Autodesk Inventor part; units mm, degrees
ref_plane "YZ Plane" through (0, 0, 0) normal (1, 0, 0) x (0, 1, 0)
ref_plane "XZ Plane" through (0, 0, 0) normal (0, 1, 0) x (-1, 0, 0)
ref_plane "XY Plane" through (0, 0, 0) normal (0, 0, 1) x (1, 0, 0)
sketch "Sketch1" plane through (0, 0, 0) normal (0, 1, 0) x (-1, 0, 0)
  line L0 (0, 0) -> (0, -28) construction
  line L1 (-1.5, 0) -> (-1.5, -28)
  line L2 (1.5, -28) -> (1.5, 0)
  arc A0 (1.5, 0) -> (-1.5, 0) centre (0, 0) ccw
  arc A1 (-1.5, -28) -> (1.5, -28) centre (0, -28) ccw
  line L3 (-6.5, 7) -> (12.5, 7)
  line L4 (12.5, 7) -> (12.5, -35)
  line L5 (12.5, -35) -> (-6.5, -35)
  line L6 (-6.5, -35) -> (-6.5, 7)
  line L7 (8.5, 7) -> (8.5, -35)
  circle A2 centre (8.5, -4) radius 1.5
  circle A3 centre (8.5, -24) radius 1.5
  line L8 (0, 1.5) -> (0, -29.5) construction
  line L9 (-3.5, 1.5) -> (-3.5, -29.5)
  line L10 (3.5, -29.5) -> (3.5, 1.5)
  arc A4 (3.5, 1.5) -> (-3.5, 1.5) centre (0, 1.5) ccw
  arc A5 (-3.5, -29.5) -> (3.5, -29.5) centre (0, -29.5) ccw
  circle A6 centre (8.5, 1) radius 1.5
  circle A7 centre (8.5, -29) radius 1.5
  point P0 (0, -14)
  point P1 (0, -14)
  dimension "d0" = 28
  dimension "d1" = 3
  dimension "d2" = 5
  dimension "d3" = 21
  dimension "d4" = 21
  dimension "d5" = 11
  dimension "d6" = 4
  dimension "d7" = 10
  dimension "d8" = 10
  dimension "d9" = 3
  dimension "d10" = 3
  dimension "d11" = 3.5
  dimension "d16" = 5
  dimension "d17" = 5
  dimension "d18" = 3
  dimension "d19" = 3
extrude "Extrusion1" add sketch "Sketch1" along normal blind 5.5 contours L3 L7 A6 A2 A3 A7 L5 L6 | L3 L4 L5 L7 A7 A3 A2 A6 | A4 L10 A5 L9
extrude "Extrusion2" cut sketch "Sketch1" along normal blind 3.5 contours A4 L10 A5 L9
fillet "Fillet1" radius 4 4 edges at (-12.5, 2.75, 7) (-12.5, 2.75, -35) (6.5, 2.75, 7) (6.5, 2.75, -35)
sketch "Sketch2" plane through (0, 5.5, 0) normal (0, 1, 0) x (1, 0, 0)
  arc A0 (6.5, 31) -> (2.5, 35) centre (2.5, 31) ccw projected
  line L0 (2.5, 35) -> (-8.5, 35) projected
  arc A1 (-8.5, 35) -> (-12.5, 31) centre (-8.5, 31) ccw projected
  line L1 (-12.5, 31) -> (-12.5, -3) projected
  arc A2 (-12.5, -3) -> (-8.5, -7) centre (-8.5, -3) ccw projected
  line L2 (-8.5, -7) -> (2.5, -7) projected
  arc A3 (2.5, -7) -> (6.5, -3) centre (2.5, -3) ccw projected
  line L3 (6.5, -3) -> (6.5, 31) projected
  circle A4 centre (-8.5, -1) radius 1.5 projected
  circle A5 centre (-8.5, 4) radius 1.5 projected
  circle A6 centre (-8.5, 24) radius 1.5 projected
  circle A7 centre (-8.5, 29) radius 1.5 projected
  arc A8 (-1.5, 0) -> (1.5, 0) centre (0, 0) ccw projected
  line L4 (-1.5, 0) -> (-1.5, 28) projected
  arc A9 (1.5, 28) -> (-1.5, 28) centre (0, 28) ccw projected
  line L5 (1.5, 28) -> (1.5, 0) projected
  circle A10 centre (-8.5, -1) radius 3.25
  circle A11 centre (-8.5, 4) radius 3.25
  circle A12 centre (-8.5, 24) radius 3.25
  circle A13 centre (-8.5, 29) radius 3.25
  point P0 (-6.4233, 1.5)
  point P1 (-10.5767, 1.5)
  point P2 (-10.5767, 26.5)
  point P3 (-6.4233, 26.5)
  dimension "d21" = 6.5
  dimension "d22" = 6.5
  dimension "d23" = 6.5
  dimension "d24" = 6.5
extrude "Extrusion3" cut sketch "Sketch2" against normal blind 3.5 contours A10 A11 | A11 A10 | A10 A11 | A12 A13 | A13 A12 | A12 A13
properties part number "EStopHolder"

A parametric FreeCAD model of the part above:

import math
import FreeCAD as App
import Part
import Sketcher
from FreeCAD import Vector
Q = App.Units.Quantity


def edges_at(feature, points):
    """Names of the edges that pass closest to the given points."""
    edges = feature.Shape.Edges
    near = lambda p: min(range(len(edges)), key=lambda i: edges[i].distToShape(Part.Vertex(*p))[0])
    return sorted({f"Edge{near(p) + 1}" for p in points})

doc = App.newDocument("Part")
body = doc.addObject("PartDesign::Body", "Body")

sketch1 = doc.addObject("Sketcher::SketchObject", "Sketch")
body.addObject(sketch1)
sketch1.AttachmentSupport = (doc.XZ_Plane, [""])
sketch1.MapMode = "FlatFace"
sketch1.addGeometry(Part.LineSegment(Vector(6.5, 7, 0), Vector(6.5, -35, 0)), False)
sketch1.addGeometry(Part.LineSegment(Vector(6.5, -35, 0), Vector(-12.5, -35, 0)), False)
sketch1.addGeometry(Part.LineSegment(Vector(-12.5, -35, 0), Vector(-12.5, 7, 0)), False)
sketch1.addGeometry(Part.LineSegment(Vector(-12.5, 7, 0), Vector(6.5, 7, 0)), False)
sketch1.addGeometry(Part.Circle(Vector(-8.5, 1, 0), Vector(0, 0, 1), 1.5), False)
sketch1.addGeometry(Part.Circle(Vector(-8.5, -4, 0), Vector(0, 0, 1), 1.5), False)
sketch1.addGeometry(Part.Circle(Vector(-8.5, -24, 0), Vector(0, 0, 1), 1.5), False)
sketch1.addGeometry(Part.Circle(Vector(-8.5, -29, 0), Vector(0, 0, 1), 1.5), False)
sketch1.addGeometry(Part.LineSegment(Vector(1.5, -28, 0), Vector(1.5, 0, 0)), False)
sketch1.addGeometry(Part.ArcOfCircle(Part.Circle(Vector(0, 0, 0), Vector(0, 0, 1), 1.5), math.radians(0), math.radians(180)), False)
sketch1.addGeometry(Part.LineSegment(Vector(-1.5, 0, 0), Vector(-1.5, -28, 0)), False)
sketch1.addGeometry(Part.ArcOfCircle(Part.Circle(Vector(0, -28, 0), Vector(0, 0, 1), 1.5), math.radians(180), math.radians(360)), False)
sketch1.addConstraint(Sketcher.Constraint("Coincident", 0, 2, 1, 1))
sketch1.addConstraint(Sketcher.Constraint("Coincident", 1, 2, 2, 1))
sketch1.addConstraint(Sketcher.Constraint("Coincident", 2, 2, 3, 1))
sketch1.addConstraint(Sketcher.Constraint("Coincident", 3, 2, 0, 1))
sketch1.addConstraint(Sketcher.Constraint("Tangent", 8, 2, 9, 1))
sketch1.addConstraint(Sketcher.Constraint("Tangent", 9, 2, 10, 1))
sketch1.addConstraint(Sketcher.Constraint("Tangent", 10, 2, 11, 1))
sketch1.addConstraint(Sketcher.Constraint("Tangent", 11, 2, 8, 1))
sketch1.addConstraint(Sketcher.Constraint("Vertical", 0))
sketch1.addConstraint(Sketcher.Constraint("Horizontal", 1))
sketch1.addConstraint(Sketcher.Constraint("Vertical", 2))
sketch1.addConstraint(Sketcher.Constraint("Horizontal", 3))
sketch1.addConstraint(Sketcher.Constraint("Vertical", 8))
sketch1.addConstraint(Sketcher.Constraint("Vertical", 10))
sketch1.addConstraint(Sketcher.Constraint("Coincident", 9, 3, -1, 1))
sketch1.addConstraint(Sketcher.Constraint("Equal", 4, 5))
sketch1.addConstraint(Sketcher.Constraint("Equal", 5, 6))
sketch1.addConstraint(Sketcher.Constraint("Equal", 6, 7))
sketch1.addConstraint(Sketcher.Constraint("Equal", 7, 9))
sketch1.addConstraint(Sketcher.Constraint("Vertical", 4, 3, 5, 3))
sketch1.addConstraint(Sketcher.Constraint("Vertical", 5, 3, 6, 3))
sketch1.addConstraint(Sketcher.Constraint("Vertical", 6, 3, 7, 3))
sketch1.addConstraint(Sketcher.Constraint("Diameter", 4, Q("3 mm")))
sketch1.addConstraint(Sketcher.Constraint("DistanceY", 8, 1, 8, 2, Q("28 mm")))
sketch1.addConstraint(Sketcher.Constraint("DistanceY", 5, 3, -1, 1, Q("4 mm")))
sketch1.addConstraint(Sketcher.Constraint("DistanceY", 5, 3, 4, 3, Q("5 mm")))
sketch1.addConstraint(Sketcher.Constraint("DistanceY", 7, 3, 6, 3, Q("5 mm")))
sketch1.addConstraint(Sketcher.Constraint("DistanceY", 11, 3, 6, 3, Q("4 mm")))
sketch1.addConstraint(Sketcher.Constraint("DistanceY", 0, 2, 6, 3, Q("11 mm")))
sketch1.addConstraint(Sketcher.Constraint("DistanceX", 1, 2, 7, 3, Q("4 mm")))
sketch1.addConstraint(Sketcher.Constraint("DistanceY", 5, 3, 2, 2, Q("11 mm")))
sketch1.addConstraint(Sketcher.Constraint("DistanceX", 8, 2, 3, 2, Q("5 mm")))
sketch1.addConstraint(Sketcher.Constraint("DistanceX", 4, 3, 8, 2, Q("10 mm")))
pad1 = doc.addObject("PartDesign::Pad", "Pad")
body.addObject(pad1)
pad1.Profile = sketch1
pad1.Length = 5.5
pad1.Reversed = True

sketch2 = doc.addObject("Sketcher::SketchObject", "Sketch001")
body.addObject(sketch2)
sketch2.AttachmentSupport = (doc.XZ_Plane, [""])
sketch2.MapMode = "FlatFace"
sketch2.addGeometry(Part.ArcOfCircle(Part.Circle(Vector(0, 1.5, 0), Vector(0, 0, 1), 3.5), math.radians(0), math.radians(180)), False)
sketch2.addGeometry(Part.LineSegment(Vector(3.5, 1.5, 0), Vector(3.5, -29.5, 0)), False)
sketch2.addGeometry(Part.ArcOfCircle(Part.Circle(Vector(0, -29.5, 0), Vector(0, 0, 1), 3.5), math.radians(180), math.radians(360)), False)
sketch2.addGeometry(Part.LineSegment(Vector(-3.5, -29.5, 0), Vector(-3.5, 1.5, 0)), False)
sketch2.addGeometry(Part.LineSegment(Vector(1.5, -28, 0), Vector(1.5, 0, 0)), False)
sketch2.addGeometry(Part.ArcOfCircle(Part.Circle(Vector(0, 0, 0), Vector(0, 0, 1), 1.5), math.radians(0), math.radians(180)), False)
sketch2.addGeometry(Part.LineSegment(Vector(-1.5, 0, 0), Vector(-1.5, -28, 0)), False)
sketch2.addGeometry(Part.ArcOfCircle(Part.Circle(Vector(0, -28, 0), Vector(0, 0, 1), 1.5), math.radians(180), math.radians(360)), False)
sketch2.addConstraint(Sketcher.Constraint("Tangent", 0, 1, 1, 1))
sketch2.addConstraint(Sketcher.Constraint("Tangent", 1, 2, 2, 2))
sketch2.addConstraint(Sketcher.Constraint("Tangent", 2, 1, 3, 1))
sketch2.addConstraint(Sketcher.Constraint("Tangent", 3, 2, 0, 2))
sketch2.addConstraint(Sketcher.Constraint("Tangent", 4, 2, 5, 1))
sketch2.addConstraint(Sketcher.Constraint("Tangent", 5, 2, 6, 1))
sketch2.addConstraint(Sketcher.Constraint("Tangent", 6, 2, 7, 1))
sketch2.addConstraint(Sketcher.Constraint("Tangent", 7, 2, 4, 1))
sketch2.addConstraint(Sketcher.Constraint("Vertical", 1))
sketch2.addConstraint(Sketcher.Constraint("Vertical", 3))
sketch2.addConstraint(Sketcher.Constraint("Vertical", 4))
sketch2.addConstraint(Sketcher.Constraint("Vertical", 6))
sketch2.addConstraint(Sketcher.Constraint("Coincident", 5, 3, -1, 1))
sketch2.addConstraint(Sketcher.Constraint("PointOnObject", 0, 3, -2))
sketch2.addConstraint(Sketcher.Constraint("Radius", 0, Q("3.5 mm")))
sketch2.addConstraint(Sketcher.Constraint("Radius", 5, Q("1.5 mm")))
sketch2.addConstraint(Sketcher.Constraint("DistanceY", 4, 1, 4, 2, Q("28 mm")))
sketch2.addConstraint(Sketcher.Constraint("DistanceY", 1, 2, 1, 1, Q("31 mm")))
sketch2.addConstraint(Sketcher.Constraint("DistanceY", -1, 1, 0, 3, Q("1.5 mm")))
pocket1 = doc.addObject("PartDesign::Pocket", "Pocket")
body.addObject(pocket1)
pocket1.Profile = sketch2
pocket1.Length = 3.5
doc.recompute()

fillet = doc.addObject("PartDesign::Fillet", "Fillet")
body.addObject(fillet)
fillet.Base = (pocket1, edges_at(pocket1, [
    (-12.5, 2.75, 7),
    (-12.5, 2.75, -35),
    (6.5, 2.75, 7),
    (6.5, 2.75, -35),
]))
fillet.Radius = 4

sketch3 = doc.addObject("Sketcher::SketchObject", "Sketch002")
body.addObject(sketch3)
sketch3.AttachmentSupport = (doc.XZ_Plane, [""])
sketch3.MapMode = "FlatFace"
sketch3.AttachmentOffset = App.Placement(Vector(0, 0, -5.5), App.Rotation())
sketch3.addGeometry(Part.ArcOfCircle(Part.Circle(Vector(-8.5, 1, 0), Vector(0, 0, 1), 3.2), math.radians(-50), math.radians(230)), False)
sketch3.addGeometry(Part.ArcOfCircle(Part.Circle(Vector(-8.5, -4, 0), Vector(0, 0, 1), 3.2), math.radians(130), math.radians(410)), False)
sketch3.addGeometry(Part.Circle(Vector(-8.5, 1, 0), Vector(0, 0, 1), 1.5), False)
sketch3.addGeometry(Part.Circle(Vector(-8.5, -4, 0), Vector(0, 0, 1), 1.5), False)
sketch3.addGeometry(Part.ArcOfCircle(Part.Circle(Vector(-8.5, -24, 0), Vector(0, 0, 1), 3.2), math.radians(-50), math.radians(230)), False)
sketch3.addGeometry(Part.ArcOfCircle(Part.Circle(Vector(-8.5, -29, 0), Vector(0, 0, 1), 3.2), math.radians(130), math.radians(410)), False)
sketch3.addGeometry(Part.Circle(Vector(-8.5, -24, 0), Vector(0, 0, 1), 1.5), False)
sketch3.addGeometry(Part.Circle(Vector(-8.5, -29, 0), Vector(0, 0, 1), 1.5), False)
sketch3.addConstraint(Sketcher.Constraint("Coincident", 0, 1, 1, 2))
sketch3.addConstraint(Sketcher.Constraint("Coincident", 1, 1, 0, 2))
sketch3.addConstraint(Sketcher.Constraint("Coincident", 4, 1, 5, 2))
sketch3.addConstraint(Sketcher.Constraint("Coincident", 5, 1, 4, 2))
sketch3.addConstraint(Sketcher.Constraint("Coincident", 2, 3, 0, 3))
sketch3.addConstraint(Sketcher.Constraint("Coincident", 3, 3, 1, 3))
sketch3.addConstraint(Sketcher.Constraint("Coincident", 6, 3, 4, 3))
sketch3.addConstraint(Sketcher.Constraint("Coincident", 7, 3, 5, 3))
sketch3.addConstraint(Sketcher.Constraint("Equal", 0, 1))
sketch3.addConstraint(Sketcher.Constraint("Equal", 2, 3))
sketch3.addConstraint(Sketcher.Constraint("Equal", 1, 4))
sketch3.addConstraint(Sketcher.Constraint("Equal", 4, 5))
sketch3.addConstraint(Sketcher.Constraint("Equal", 3, 6))
sketch3.addConstraint(Sketcher.Constraint("Equal", 6, 7))
sketch3.addConstraint(Sketcher.Constraint("Horizontal", 0, 1, 1, 1))
sketch3.addConstraint(Sketcher.Constraint("Horizontal", 4, 1, 5, 1))
sketch3.addConstraint(Sketcher.Constraint("Vertical", 3, 3, 4, 3))
sketch3.addConstraint(Sketcher.Constraint("Vertical", 0, 1, 4, 1))
sketch3.addConstraint(Sketcher.Constraint("Radius", 0, Q("3.25 mm")))
sketch3.addConstraint(Sketcher.Constraint("Diameter", 2, Q("3 mm")))
sketch3.addConstraint(Sketcher.Constraint("DistanceY", -1, 1, 0, 3, Q("1 mm")))
sketch3.addConstraint(Sketcher.Constraint("DistanceY", 1, 3, -1, 1, Q("4 mm")))
sketch3.addConstraint(Sketcher.Constraint("DistanceY", 4, 3, -1, 1, Q("24 mm")))
sketch3.addConstraint(Sketcher.Constraint("DistanceX", 0, 3, -1, 1, Q("8.5 mm")))
pocket2 = doc.addObject("PartDesign::Pocket", "Pocket001")
body.addObject(pocket2)
pocket2.Profile = sketch3
pocket2.Length = 3.5
pocket2.Reversed = True

doc.recompute()
